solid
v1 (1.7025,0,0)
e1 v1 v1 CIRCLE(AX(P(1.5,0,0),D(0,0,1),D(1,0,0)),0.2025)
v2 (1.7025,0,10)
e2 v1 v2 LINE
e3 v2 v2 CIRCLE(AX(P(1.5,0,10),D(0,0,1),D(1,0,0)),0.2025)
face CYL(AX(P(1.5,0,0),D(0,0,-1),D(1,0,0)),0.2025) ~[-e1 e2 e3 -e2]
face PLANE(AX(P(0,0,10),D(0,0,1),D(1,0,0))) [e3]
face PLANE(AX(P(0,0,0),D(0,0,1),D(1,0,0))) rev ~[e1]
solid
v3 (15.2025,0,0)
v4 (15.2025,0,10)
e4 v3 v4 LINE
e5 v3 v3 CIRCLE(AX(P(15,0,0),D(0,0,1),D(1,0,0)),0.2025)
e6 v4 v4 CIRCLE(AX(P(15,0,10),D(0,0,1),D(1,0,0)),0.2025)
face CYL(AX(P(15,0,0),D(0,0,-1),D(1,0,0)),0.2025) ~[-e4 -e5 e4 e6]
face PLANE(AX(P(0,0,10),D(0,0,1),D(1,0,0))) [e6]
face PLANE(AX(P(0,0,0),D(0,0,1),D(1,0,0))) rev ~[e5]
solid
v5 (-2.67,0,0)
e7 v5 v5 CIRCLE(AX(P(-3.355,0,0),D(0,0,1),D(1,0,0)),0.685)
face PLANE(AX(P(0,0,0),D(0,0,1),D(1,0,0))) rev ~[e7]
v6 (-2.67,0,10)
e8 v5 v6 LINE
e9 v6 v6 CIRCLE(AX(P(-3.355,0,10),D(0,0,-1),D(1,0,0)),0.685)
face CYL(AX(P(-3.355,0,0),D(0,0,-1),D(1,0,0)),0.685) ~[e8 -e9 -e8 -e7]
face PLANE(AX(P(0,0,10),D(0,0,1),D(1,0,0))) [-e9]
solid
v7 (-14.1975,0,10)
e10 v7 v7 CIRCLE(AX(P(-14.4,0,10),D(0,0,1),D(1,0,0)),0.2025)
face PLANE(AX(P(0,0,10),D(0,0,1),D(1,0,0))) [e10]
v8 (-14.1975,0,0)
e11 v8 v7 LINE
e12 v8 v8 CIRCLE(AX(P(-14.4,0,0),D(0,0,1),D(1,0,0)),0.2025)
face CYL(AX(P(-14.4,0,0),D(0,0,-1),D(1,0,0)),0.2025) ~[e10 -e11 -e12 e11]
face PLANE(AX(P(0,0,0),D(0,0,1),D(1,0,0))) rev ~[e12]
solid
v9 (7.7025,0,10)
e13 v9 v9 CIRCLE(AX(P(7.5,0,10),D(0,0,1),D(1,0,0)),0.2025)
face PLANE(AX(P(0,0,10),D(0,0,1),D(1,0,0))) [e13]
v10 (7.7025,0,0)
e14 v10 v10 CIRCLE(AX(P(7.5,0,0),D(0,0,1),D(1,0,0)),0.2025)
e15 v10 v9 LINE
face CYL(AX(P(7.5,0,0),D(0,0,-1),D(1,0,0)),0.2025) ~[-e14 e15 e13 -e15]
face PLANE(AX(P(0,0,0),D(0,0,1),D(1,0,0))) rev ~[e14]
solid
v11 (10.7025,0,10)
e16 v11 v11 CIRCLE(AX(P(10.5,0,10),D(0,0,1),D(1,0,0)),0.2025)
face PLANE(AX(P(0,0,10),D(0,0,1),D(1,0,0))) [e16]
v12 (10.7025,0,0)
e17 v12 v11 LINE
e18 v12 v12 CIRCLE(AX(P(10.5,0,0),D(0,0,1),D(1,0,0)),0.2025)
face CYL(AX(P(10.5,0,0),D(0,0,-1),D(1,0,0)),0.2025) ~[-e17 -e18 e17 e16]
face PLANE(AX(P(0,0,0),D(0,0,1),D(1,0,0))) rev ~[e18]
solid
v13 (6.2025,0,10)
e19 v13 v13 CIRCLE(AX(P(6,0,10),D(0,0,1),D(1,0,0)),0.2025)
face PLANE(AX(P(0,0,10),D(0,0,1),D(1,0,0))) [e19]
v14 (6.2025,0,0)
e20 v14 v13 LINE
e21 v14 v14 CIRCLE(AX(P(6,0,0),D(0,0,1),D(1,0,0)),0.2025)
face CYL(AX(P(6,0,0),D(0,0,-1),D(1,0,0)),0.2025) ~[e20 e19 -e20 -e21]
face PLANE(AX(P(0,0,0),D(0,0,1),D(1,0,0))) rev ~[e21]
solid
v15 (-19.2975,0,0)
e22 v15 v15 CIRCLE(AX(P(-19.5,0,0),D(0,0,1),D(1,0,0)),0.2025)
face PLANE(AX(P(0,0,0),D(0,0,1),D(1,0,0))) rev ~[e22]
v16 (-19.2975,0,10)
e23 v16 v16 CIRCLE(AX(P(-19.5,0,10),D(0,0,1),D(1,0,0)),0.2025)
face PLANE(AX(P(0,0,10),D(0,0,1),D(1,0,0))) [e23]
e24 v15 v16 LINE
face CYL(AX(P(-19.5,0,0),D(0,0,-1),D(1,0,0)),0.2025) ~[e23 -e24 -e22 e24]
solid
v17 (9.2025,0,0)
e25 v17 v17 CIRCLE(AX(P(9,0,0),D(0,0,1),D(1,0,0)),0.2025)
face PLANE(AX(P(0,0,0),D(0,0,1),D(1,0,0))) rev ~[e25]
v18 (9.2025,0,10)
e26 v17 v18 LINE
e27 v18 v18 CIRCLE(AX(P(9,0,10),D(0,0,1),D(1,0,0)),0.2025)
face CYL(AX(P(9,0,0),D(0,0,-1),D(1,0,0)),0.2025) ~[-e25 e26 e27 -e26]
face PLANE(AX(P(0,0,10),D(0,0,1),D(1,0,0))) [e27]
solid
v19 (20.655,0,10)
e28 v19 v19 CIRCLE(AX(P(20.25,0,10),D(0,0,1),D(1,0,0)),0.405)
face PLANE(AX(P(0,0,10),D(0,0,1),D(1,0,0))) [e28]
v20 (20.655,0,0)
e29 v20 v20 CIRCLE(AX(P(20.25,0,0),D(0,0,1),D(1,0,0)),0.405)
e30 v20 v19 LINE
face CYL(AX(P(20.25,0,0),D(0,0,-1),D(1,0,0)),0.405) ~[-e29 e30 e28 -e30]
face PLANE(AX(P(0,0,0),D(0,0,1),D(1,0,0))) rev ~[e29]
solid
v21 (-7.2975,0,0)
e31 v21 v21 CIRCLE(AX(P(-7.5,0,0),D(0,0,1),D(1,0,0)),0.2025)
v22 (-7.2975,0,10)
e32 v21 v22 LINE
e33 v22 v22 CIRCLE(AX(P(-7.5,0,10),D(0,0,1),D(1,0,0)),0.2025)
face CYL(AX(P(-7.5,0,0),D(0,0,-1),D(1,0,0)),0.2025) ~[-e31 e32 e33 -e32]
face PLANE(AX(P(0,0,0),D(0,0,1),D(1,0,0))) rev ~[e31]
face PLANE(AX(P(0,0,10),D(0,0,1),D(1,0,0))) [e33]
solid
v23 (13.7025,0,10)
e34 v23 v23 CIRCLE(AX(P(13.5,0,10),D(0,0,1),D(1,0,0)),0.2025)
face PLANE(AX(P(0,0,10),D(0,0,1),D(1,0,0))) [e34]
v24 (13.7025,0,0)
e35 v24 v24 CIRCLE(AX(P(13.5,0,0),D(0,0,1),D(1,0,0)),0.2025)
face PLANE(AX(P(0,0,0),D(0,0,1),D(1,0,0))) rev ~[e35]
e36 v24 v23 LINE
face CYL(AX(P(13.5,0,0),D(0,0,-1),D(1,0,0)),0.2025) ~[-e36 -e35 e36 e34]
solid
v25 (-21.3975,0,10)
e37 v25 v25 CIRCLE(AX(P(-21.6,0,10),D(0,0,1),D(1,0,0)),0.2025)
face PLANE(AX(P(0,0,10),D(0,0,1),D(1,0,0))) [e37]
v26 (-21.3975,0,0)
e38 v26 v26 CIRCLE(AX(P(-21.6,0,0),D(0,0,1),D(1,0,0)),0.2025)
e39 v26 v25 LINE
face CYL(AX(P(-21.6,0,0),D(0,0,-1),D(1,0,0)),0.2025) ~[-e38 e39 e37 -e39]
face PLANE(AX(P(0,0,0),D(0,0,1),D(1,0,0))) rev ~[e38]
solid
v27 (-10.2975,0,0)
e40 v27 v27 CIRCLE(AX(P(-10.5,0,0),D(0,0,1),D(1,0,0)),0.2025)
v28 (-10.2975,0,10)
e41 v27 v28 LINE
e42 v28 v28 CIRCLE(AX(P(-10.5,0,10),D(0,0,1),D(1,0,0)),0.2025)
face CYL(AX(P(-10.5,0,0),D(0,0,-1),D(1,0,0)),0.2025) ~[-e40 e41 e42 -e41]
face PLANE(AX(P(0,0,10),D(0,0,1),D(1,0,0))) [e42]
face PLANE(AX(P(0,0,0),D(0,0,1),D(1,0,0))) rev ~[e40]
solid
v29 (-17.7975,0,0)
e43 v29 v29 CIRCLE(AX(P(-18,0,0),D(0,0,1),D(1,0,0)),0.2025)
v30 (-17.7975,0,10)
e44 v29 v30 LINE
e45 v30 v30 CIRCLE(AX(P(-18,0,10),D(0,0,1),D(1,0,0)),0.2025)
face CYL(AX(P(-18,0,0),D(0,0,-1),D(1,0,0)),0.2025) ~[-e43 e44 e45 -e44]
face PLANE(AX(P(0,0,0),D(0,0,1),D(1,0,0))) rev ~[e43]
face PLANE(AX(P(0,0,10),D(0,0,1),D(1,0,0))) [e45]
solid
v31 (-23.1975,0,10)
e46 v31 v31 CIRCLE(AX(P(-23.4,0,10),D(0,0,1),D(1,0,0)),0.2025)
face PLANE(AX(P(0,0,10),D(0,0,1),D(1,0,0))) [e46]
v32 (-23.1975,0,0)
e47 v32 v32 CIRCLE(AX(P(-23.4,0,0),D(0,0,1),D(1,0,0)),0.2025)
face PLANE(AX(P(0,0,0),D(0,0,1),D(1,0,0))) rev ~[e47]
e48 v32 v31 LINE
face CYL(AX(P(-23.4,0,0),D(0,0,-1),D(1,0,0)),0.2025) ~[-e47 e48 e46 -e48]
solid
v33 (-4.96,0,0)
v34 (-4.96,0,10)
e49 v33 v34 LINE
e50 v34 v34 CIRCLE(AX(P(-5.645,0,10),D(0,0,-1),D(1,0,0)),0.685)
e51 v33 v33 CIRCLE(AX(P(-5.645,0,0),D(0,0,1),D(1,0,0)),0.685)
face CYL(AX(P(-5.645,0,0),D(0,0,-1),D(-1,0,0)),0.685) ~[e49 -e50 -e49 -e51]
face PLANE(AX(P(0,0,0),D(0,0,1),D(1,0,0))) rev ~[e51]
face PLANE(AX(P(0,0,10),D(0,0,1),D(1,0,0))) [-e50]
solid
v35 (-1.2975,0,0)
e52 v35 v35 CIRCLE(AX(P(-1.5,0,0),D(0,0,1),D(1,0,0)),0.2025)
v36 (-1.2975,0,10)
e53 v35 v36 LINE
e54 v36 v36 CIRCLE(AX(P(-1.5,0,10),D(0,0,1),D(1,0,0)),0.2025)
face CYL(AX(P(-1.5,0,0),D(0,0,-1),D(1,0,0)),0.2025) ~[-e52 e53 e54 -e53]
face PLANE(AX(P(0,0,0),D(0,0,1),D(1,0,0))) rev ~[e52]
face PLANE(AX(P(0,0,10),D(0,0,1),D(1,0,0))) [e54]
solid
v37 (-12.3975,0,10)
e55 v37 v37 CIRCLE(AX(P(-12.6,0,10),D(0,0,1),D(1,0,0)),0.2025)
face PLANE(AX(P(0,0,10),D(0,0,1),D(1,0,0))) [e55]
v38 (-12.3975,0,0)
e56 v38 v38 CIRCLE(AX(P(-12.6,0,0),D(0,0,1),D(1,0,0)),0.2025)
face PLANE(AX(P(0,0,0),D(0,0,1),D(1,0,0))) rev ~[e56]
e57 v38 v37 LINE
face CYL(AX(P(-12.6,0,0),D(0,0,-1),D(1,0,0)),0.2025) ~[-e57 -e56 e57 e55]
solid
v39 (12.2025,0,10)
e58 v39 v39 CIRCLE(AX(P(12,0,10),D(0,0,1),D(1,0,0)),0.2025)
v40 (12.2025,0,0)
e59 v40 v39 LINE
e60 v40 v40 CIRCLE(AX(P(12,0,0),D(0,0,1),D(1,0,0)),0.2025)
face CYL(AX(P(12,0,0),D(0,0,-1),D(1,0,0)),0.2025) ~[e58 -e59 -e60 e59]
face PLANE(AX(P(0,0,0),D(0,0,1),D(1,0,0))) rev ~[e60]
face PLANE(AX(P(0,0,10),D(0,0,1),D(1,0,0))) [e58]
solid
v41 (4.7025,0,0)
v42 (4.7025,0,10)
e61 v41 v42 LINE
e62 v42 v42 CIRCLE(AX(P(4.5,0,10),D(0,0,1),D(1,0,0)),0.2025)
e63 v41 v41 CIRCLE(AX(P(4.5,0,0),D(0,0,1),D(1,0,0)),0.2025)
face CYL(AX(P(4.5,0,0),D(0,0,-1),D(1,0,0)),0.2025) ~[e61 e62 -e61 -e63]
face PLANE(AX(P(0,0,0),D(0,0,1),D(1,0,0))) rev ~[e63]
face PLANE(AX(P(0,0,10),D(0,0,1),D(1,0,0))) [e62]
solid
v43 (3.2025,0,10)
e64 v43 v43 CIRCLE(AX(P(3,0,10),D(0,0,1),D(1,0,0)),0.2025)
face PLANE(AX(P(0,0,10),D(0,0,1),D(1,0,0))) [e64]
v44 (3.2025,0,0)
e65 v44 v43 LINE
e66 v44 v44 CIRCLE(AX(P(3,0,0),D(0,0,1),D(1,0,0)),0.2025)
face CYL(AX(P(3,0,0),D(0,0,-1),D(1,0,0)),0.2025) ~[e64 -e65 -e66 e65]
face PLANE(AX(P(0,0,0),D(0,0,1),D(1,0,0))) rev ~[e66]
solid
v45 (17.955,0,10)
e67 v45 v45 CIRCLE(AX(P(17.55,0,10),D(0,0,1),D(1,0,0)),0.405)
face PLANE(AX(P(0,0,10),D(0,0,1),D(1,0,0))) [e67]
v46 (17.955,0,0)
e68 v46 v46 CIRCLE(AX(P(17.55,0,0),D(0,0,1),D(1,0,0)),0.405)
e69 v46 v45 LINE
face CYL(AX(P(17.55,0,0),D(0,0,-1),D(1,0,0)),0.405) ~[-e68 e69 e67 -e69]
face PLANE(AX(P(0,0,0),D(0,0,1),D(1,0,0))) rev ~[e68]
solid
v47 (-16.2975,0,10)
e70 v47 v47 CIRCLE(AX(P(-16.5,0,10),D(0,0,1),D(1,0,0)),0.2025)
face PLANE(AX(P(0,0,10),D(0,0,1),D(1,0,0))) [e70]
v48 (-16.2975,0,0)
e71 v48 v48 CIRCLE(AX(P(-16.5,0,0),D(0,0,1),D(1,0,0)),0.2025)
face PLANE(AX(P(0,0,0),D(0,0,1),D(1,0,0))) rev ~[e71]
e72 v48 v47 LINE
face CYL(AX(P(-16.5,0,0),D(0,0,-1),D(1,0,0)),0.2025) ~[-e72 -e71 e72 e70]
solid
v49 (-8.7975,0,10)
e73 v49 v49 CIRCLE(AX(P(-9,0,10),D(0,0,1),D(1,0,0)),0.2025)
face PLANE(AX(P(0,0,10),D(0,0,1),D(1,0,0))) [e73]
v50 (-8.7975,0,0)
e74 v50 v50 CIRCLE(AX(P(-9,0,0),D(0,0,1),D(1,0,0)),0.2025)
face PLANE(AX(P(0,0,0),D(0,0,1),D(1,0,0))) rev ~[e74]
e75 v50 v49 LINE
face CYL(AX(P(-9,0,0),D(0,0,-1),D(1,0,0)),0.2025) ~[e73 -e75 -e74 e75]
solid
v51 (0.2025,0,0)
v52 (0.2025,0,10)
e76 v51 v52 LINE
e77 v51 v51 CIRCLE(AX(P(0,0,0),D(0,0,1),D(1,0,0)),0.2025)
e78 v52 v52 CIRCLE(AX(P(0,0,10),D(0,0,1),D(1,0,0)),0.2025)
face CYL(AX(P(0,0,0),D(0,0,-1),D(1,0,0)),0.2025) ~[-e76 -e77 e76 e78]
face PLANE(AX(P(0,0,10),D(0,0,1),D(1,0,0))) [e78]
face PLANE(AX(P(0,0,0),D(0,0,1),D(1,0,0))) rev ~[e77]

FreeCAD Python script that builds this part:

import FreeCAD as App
import Part
import Sketcher
from FreeCAD import Vector

doc = App.newDocument("Part")
body = doc.addObject("PartDesign::Body", "Body")
body.AllowCompound = True

# Sketch on XY plane
sketch1 = body.newObject("Sketcher::SketchObject", "Sketch")
sketch1.AttachmentSupport = (doc.getObject("XY_Plane"), [""])
sketch1.MapMode = "FlatFace"
sketch1.addGeometry([
    Part.Circle(Vector(20.25, 0, 0), Vector(0, 0, 1), 0.405),  # 0
    Part.Circle(Vector(17.55, 0, 0), Vector(0, 0, 1), 0.405),  # 1
    Part.Circle(Vector(15, 0, 0), Vector(0, 0, 1), 0.2025),  # 2
    Part.Circle(Vector(13.5, 0, 0), Vector(0, 0, 1), 0.2025),  # 3
    Part.Circle(Vector(12, 0, 0), Vector(0, 0, 1), 0.2025),  # 4
    Part.Circle(Vector(10.5, 0, 0), Vector(0, 0, 1), 0.2025),  # 5
    Part.Circle(Vector(9, 0, 0), Vector(0, 0, 1), 0.2025),  # 6
    Part.Circle(Vector(7.5, 0, 0), Vector(0, 0, 1), 0.2025),  # 7
    Part.Circle(Vector(6, 0, 0), Vector(0, 0, 1), 0.2025),  # 8
    Part.Circle(Vector(4.5, 0, 0), Vector(0, 0, 1), 0.2025),  # 9
    Part.Circle(Vector(3, 0, 0), Vector(0, 0, 1), 0.2025),  # 10
    Part.Circle(Vector(1.5, 0, 0), Vector(0, 0, 1), 0.2025),  # 11
    Part.Circle(Vector(0, 0, 0), Vector(0, 0, 1), 0.2025),  # 12
    Part.Circle(Vector(-1.5, 0, 0), Vector(0, 0, 1), 0.2025),  # 13
    Part.Circle(Vector(-7.5, 0, 0), Vector(0, 0, 1), 0.2025),  # 14
    Part.Circle(Vector(-9, 0, 0), Vector(0, 0, 1), 0.2025),  # 15
    Part.Circle(Vector(-10.5, 0, 0), Vector(0, 0, 1), 0.2025),  # 16
    Part.Circle(Vector(-12.6, 0, 0), Vector(0, 0, 1), 0.2025),  # 17
    Part.Circle(Vector(-14.4, 0, 0), Vector(0, 0, 1), 0.2025),  # 18
    Part.Circle(Vector(-16.5, 0, 0), Vector(0, 0, 1), 0.2025),  # 19
    Part.Circle(Vector(-18, 0, 0), Vector(0, 0, 1), 0.2025),  # 20
    Part.Circle(Vector(-19.5, 0, 0), Vector(0, 0, 1), 0.2025),  # 21
    Part.Circle(Vector(-21.6, 0, 0), Vector(0, 0, 1), 0.2025),  # 22
    Part.Circle(Vector(-23.4, 0, 0), Vector(0, 0, 1), 0.2025),  # 23
    Part.Circle(Vector(-5.645, 0, 0), Vector(0, 0, 1), 0.685),  # 24
    Part.Circle(Vector(-3.355, 0, 0), Vector(0, 0, 1), 0.685),  # 25
], False)
sketch1.addConstraint([
    Sketcher.Constraint("Coincident", 12, 3, -1, 1),
    Sketcher.Constraint("Equal", 0, 1),
    Sketcher.Constraint("Equal", 2, 3),
    Sketcher.Constraint("Equal", 3, 4),
    Sketcher.Constraint("Equal", 4, 5),
    Sketcher.Constraint("Equal", 5, 6),
    Sketcher.Constraint("Equal", 6, 7),
    Sketcher.Constraint("Equal", 7, 8),
    Sketcher.Constraint("Equal", 8, 9),
    Sketcher.Constraint("Equal", 9, 10),
    Sketcher.Constraint("Equal", 10, 11),
    Sketcher.Constraint("Equal", 11, 12),
    Sketcher.Constraint("Equal", 12, 13),
    Sketcher.Constraint("Equal", 13, 14),
    Sketcher.Constraint("Equal", 14, 15),
    Sketcher.Constraint("Equal", 15, 16),
    Sketcher.Constraint("Equal", 16, 17),
    Sketcher.Constraint("Equal", 17, 18),
    Sketcher.Constraint("Equal", 18, 19),
    Sketcher.Constraint("Equal", 19, 20),
    Sketcher.Constraint("Equal", 20, 21),
    Sketcher.Constraint("Equal", 21, 22),
    Sketcher.Constraint("Equal", 22, 23),
    Sketcher.Constraint("Equal", 24, 25),
    Sketcher.Constraint("Symmetric", 11, 3, 13, 3, -1, 1),
    Sketcher.Constraint("Symmetric", 7, 3, 14, 3, -1, 1),
    Sketcher.Constraint("Symmetric", 6, 3, 15, 3, -1, 1),
    Sketcher.Constraint("Symmetric", 5, 3, 16, 3, -1, 1),
    Sketcher.Constraint("PointOnObject", 0, 3, -1),
    Sketcher.Constraint("PointOnObject", 1, 3, -1),
    Sketcher.Constraint("PointOnObject", 2, 3, -1),
    Sketcher.Constraint("PointOnObject", 3, 3, -1),
    Sketcher.Constraint("PointOnObject", 4, 3, -1),
    Sketcher.Constraint("PointOnObject", 5, 3, -1),
    Sketcher.Constraint("PointOnObject", 6, 3, -1),
    Sketcher.Constraint("PointOnObject", 7, 3, -1),
    Sketcher.Constraint("PointOnObject", 8, 3, -1),
    Sketcher.Constraint("PointOnObject", 9, 3, -1),
    Sketcher.Constraint("PointOnObject", 10, 3, -1),
    Sketcher.Constraint("PointOnObject", 11, 3, -1),
    Sketcher.Constraint("PointOnObject", 17, 3, -1),
    Sketcher.Constraint("PointOnObject", 18, 3, -1),
    Sketcher.Constraint("PointOnObject", 19, 3, -1),
    Sketcher.Constraint("PointOnObject", 20, 3, -1),
    Sketcher.Constraint("PointOnObject", 21, 3, -1),
    Sketcher.Constraint("PointOnObject", 22, 3, -1),
    Sketcher.Constraint("PointOnObject", 23, 3, -1),
    Sketcher.Constraint("PointOnObject", 24, 3, -1),
    Sketcher.Constraint("PointOnObject", 25, 3, -1),
    Sketcher.Constraint("Diameter", 0, 0.81),
    Sketcher.Constraint("Diameter", 2, 0.405),
    Sketcher.Constraint("DistanceX", -1, 1, 8, 3, 6.0),
    Sketcher.Constraint("DistanceX", 6, 3, 2, 3, 6.0),
    Sketcher.Constraint("DistanceX", 7, 3, 3, 3, 6.0),
    Sketcher.Constraint("DistanceX", 8, 3, 4, 3, 6.0),
    Sketcher.Constraint("DistanceX", 9, 3, 5, 3, 6.0),
    Sketcher.Constraint("DistanceX", 10, 3, 6, 3, 6.0),
    Sketcher.Constraint("DistanceX", 11, 3, 7, 3, 6.0),
    Sketcher.Constraint("DistanceX", 13, 3, 9, 3, 6.0),
    Sketcher.Constraint("DistanceX", 19, 3, 16, 3, 6.0),
    Sketcher.Constraint("DistanceX", -1, 1, 11, 3, 1.5),
    Sketcher.Constraint("DistanceX", 1, 3, 0, 3, 2.7),
    Sketcher.Constraint("DistanceX", 3, 3, 2, 3, 1.5),
    Sketcher.Constraint("DistanceX", 17, 3, 16, 3, 2.1),
    Sketcher.Constraint("DistanceX", 18, 3, 17, 3, 1.8),
    Sketcher.Constraint("DistanceX", 20, 3, 19, 3, 1.5),
    Sketcher.Constraint("DistanceX", 21, 3, 20, 3, 1.5),
    Sketcher.Constraint("DistanceX", 22, 3, 21, 3, 2.1),
    Sketcher.Constraint("DistanceX", 23, 3, 22, 3, 1.8),
    Sketcher.Constraint("Diameter", 24, 1.37),
    Sketcher.Constraint("DistanceX", 2, 3, 1, 3, 2.55),
    Sketcher.Constraint("DistanceX", 24, 3, 25, 3, 2.29),
    Sketcher.Constraint("DistanceX", 24, 3, -1, 1, 5.645),
])
pad1 = body.newObject("PartDesign::Pad", "Pad")
pad1.Profile = sketch1
pad1.Length = 10

doc.recompute()
